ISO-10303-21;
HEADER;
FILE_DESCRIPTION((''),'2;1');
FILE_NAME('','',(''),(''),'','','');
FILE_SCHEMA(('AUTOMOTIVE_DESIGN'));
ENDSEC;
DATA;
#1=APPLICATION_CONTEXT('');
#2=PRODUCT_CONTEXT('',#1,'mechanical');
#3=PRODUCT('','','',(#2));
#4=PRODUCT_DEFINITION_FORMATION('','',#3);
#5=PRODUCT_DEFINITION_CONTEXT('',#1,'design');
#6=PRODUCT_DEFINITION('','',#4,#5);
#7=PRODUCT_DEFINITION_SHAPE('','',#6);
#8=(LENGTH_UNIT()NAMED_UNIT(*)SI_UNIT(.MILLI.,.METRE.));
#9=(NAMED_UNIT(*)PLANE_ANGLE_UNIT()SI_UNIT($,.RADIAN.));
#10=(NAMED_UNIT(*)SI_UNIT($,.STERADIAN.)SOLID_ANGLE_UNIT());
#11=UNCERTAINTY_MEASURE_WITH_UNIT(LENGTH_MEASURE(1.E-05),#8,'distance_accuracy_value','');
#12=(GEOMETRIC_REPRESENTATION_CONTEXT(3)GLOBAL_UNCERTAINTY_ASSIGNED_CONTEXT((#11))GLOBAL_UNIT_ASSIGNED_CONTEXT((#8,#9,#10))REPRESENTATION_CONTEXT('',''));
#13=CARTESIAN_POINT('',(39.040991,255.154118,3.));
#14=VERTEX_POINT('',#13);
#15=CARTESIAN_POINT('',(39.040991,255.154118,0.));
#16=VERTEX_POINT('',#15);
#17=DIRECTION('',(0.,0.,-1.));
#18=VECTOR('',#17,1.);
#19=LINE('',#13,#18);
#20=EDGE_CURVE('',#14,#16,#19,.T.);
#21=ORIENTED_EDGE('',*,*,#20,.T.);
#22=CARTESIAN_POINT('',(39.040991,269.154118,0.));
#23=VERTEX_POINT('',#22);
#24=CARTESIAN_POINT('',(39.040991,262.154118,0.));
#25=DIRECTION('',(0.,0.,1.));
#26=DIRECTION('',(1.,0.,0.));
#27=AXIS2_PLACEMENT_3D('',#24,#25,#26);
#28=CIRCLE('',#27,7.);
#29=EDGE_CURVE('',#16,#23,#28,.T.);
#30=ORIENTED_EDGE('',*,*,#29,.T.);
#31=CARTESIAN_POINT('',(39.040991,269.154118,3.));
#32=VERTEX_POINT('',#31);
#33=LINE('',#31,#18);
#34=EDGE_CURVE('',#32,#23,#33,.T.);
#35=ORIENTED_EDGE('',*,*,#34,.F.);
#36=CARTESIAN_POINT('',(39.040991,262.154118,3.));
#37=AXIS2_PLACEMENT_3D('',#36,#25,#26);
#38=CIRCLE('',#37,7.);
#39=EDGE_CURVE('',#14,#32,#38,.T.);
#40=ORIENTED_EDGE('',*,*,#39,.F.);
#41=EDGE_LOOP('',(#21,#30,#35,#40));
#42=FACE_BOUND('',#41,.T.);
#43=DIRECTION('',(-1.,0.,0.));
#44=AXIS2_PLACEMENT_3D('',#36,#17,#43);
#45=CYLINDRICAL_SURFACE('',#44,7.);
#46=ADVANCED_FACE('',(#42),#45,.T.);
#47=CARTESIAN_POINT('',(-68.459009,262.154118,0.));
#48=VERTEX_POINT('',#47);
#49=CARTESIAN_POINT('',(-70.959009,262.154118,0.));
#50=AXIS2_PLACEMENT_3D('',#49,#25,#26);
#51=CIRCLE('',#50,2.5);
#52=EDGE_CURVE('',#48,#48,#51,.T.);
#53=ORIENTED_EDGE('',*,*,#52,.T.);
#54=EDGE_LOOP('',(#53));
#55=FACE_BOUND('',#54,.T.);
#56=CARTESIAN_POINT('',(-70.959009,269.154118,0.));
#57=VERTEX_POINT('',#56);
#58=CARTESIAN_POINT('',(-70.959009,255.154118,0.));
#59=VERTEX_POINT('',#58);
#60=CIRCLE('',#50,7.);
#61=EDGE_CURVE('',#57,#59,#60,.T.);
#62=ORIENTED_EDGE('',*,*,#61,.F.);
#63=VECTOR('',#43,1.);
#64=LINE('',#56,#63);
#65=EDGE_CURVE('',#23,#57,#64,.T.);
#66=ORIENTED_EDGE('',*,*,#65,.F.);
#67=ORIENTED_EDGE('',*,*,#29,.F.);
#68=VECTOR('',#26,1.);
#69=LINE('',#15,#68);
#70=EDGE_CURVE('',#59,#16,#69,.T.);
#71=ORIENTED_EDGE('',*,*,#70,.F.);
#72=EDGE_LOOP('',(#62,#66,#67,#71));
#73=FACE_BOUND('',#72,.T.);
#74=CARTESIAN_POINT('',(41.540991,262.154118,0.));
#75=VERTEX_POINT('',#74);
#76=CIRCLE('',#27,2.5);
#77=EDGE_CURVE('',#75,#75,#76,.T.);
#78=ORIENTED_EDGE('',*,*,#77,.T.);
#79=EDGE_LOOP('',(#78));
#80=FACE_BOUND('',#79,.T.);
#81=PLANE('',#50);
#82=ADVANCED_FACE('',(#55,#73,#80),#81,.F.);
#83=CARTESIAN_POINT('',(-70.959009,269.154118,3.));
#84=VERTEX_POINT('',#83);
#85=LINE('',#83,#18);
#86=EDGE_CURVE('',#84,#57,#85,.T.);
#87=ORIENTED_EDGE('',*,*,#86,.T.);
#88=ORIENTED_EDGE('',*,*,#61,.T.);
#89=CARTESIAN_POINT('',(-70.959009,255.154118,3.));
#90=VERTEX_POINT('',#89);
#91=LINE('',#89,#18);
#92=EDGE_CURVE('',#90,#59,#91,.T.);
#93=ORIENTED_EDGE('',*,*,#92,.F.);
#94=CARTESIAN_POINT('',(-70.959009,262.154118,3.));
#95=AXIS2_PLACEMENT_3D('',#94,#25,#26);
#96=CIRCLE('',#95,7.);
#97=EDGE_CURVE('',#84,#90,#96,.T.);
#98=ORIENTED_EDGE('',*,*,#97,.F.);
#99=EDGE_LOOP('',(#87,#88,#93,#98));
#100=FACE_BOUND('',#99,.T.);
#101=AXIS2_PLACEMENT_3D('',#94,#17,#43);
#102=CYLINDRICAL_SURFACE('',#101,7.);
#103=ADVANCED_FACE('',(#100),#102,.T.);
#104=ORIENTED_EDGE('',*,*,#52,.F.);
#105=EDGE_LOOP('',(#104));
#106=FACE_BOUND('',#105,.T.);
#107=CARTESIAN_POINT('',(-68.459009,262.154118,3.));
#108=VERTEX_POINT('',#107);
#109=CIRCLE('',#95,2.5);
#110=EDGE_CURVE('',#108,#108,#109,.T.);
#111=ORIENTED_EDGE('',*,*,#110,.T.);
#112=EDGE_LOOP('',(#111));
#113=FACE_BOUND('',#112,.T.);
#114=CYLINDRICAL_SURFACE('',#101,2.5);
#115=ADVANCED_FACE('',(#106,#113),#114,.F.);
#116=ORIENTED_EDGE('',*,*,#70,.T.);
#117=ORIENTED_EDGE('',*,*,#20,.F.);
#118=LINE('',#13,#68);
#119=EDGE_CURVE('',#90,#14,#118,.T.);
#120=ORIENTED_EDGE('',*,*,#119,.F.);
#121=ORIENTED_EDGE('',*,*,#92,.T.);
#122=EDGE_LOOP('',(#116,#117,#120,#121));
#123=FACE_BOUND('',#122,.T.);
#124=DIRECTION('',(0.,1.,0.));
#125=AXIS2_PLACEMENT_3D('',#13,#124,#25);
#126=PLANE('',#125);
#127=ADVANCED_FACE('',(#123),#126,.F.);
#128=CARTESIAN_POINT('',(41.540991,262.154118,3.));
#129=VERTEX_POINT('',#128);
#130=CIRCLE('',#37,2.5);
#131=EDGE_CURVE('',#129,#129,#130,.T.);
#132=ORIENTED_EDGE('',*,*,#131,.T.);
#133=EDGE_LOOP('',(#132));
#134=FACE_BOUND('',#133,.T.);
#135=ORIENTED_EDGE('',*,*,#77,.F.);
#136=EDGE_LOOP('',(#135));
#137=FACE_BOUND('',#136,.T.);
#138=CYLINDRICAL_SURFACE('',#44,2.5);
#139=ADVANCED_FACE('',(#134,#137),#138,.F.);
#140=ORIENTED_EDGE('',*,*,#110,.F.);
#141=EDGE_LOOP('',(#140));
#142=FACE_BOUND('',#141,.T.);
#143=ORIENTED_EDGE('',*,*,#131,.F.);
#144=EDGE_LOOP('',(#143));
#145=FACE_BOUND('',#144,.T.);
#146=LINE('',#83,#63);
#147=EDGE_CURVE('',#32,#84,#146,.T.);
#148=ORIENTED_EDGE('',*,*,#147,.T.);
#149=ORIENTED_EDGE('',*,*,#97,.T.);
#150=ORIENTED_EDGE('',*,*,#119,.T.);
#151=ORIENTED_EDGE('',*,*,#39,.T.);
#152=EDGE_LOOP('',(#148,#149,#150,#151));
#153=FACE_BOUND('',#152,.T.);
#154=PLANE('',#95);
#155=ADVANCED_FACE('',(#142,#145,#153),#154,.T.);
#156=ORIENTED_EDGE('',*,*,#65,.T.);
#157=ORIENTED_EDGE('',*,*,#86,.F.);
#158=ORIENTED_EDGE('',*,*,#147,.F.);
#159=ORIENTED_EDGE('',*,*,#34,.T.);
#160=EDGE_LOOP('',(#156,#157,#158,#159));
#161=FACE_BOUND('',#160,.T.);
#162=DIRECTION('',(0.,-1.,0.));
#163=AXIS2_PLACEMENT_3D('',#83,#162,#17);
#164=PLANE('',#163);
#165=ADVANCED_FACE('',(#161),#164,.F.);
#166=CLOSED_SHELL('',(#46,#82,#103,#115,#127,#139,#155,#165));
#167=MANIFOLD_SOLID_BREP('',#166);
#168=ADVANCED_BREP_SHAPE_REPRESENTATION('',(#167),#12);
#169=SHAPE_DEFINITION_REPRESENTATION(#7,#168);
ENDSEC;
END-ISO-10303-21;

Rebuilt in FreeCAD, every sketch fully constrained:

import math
import FreeCAD as App
import Part
import Sketcher

V = App.Vector
Q = App.Units.Quantity

doc = App.newDocument("Part")
body = doc.addObject("PartDesign::Body", "Body")

# Sketch on XY plane
sketch1 = doc.addObject("Sketcher::SketchObject", "Sketch")
body.addObject(sketch1)
sketch1.AttachmentSupport = (doc.XY_Plane, [""])
sketch1.MapMode = "FlatFace"
sketch1.addGeometry([
    Part.LineSegment(V(39.040991, 269.154118, 0), V(-70.959009, 269.154118, 0)),  # 0
    Part.ArcOfCircle(Part.Circle(V(-70.959009, 262.154118, 0), V(0, 0, 1), 7), math.radians(90), math.radians(270)),  # 1
    Part.LineSegment(V(-70.959009, 255.154118, 0), V(39.040991, 255.154118, 0)),  # 2
    Part.ArcOfCircle(Part.Circle(V(39.040991, 262.154118, 0), V(0, 0, 1), 7), math.radians(-90), math.radians(90)),  # 3
    Part.Circle(V(39.040991, 262.154118, 0), V(0, 0, 1), 2.5),  # 4
    Part.Circle(V(-70.959009, 262.154118, 0), V(0, 0, 1), 2.5),  # 5
], False)
sketch1.addConstraint([
    Sketcher.Constraint("Tangent", 0, 2, 1, 1),
    Sketcher.Constraint("Tangent", 1, 2, 2, 1),
    Sketcher.Constraint("Tangent", 2, 2, 3, 1),
    Sketcher.Constraint("Tangent", 3, 2, 0, 1),
    Sketcher.Constraint("Horizontal", 0),
    Sketcher.Constraint("Horizontal", 2),
    Sketcher.Constraint("Coincident", 4, 3, 3, 3),
    Sketcher.Constraint("Coincident", 5, 3, 1, 3),
    Sketcher.Constraint("Equal", 4, 5),
    Sketcher.Constraint("Diameter", 4, Q("5 mm")),
    Sketcher.Constraint("Radius", 1, Q("7 mm")),
    Sketcher.Constraint("DistanceX", 0, 2, 0, 1, Q("110 mm")),
    Sketcher.Constraint("DistanceX", 1, 3, -1, 1, Q("70.959009 mm")),
    Sketcher.Constraint("DistanceY", -1, 1, 1, 3, Q("262.154118 mm")),
])
pad1 = doc.addObject("PartDesign::Pad", "Pad")
body.addObject(pad1)
pad1.Profile = sketch1
pad1.Length = 3

doc.recompute()
